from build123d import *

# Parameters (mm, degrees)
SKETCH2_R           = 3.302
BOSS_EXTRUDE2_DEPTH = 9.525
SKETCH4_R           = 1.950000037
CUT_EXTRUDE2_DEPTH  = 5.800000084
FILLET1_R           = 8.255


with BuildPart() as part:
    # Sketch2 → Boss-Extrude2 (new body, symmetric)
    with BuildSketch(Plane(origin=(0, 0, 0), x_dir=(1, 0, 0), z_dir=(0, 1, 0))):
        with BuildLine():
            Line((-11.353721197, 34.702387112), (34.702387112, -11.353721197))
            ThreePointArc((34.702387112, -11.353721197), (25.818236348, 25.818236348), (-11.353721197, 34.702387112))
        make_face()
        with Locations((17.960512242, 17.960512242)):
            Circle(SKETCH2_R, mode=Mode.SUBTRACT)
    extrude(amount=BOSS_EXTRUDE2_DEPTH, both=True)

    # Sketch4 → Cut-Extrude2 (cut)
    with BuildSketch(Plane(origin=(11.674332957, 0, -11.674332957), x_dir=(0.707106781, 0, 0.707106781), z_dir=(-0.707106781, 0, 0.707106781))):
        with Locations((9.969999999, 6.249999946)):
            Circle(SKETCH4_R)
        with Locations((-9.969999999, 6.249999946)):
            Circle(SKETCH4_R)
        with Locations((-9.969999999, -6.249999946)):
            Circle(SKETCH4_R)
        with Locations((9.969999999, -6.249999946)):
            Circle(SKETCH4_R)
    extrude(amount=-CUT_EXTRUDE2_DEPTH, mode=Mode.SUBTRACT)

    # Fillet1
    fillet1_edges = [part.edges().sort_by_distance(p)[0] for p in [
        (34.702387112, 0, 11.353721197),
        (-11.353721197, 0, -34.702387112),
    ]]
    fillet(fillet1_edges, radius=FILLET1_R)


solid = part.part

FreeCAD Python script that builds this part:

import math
import FreeCAD as App
import Part
import Sketcher
Q = App.Units.Quantity


def edges_at(feature, points):
    """Names of the edges that pass closest to the given points."""
    edges = feature.Shape.Edges
    near = lambda p: min(range(len(edges)), key=lambda i: edges[i].distToShape(Part.Vertex(*p))[0])
    return sorted({f"Edge{near(p) + 1}" for p in points})

doc = App.newDocument("Part")
params = doc.addObject("Spreadsheet::Sheet", "Params")
for row, (alias, value) in enumerate([
    ("sketch1_diameter", "0.26 in"),
    ("sketch1_radius", "1.4375 in"),
    ("pad1_length", "0.75 in"),
    ("pocket1_length", "5.8 mm"),
    ("fillet_radius", "0.325 in"),
], start=1):
    params.set(f"A{row}", alias)
    params.set(f"B{row}", "=" + value)
    params.setAlias(f"B{row}", alias)

body = doc.addObject("PartDesign::Body", "Body")

sketch1 = body.newObject("Sketcher::SketchObject", "Sketch")
sketch1.AttachmentSupport = (doc.getObject("XZ_Plane"), [""])
sketch1.MapMode = "FlatFace"
sketch1.addGeometry(Part.LineSegment(App.Vector(-11.4, -34.7, 0), App.Vector(34.7, 11.4, 0)), False)
sketch1.addGeometry(Part.ArcOfCircle(Part.Circle(App.Vector(0, 0, 0), App.Vector(0, 0, 1), 36.5), math.radians(-108), math.radians(18)), False)
sketch1.addGeometry(Part.Circle(App.Vector(18, -18, 0), App.Vector(0, 0, 1), 3.3), False)
sketch1.addConstraint(Sketcher.Constraint("Coincident", 0, 1, 1, 1))
sketch1.addConstraint(Sketcher.Constraint("Coincident", 1, 2, 0, 2))
sketch1.addConstraint(Sketcher.Constraint("Coincident", 1, 3, -1, 1))
sketch1.addConstraint(Sketcher.Constraint("Diameter", 2, Q("0.26 in")))
sketch1.addConstraint(Sketcher.Constraint("Angle", 0, Q("45 deg")))
sketch1.addConstraint(Sketcher.Constraint("Radius", 1, Q("1.4375 in")))
sketch1.addConstraint(Sketcher.Constraint("DistanceX", 0, 1, -1, 1, Q("11.353721 mm")))
sketch1.addConstraint(Sketcher.Constraint("DistanceX", -1, 1, 2, 3, Q("17.960512 mm")))
sketch1.addConstraint(Sketcher.Constraint("DistanceY", 2, 3, -1, 1, Q("17.960512 mm")))
sketch1.setExpression("Constraints[3]", "Params.sketch1_diameter")
sketch1.setExpression("Constraints[5]", "Params.sketch1_radius")
pad1 = body.newObject("PartDesign::Pad", "Pad")
pad1.Profile = sketch1
pad1.setExpression("Length", "Params.pad1_length")
pad1.Midplane = True

sketch2 = body.newObject("Sketcher::SketchObject", "Sketch001")
sketch2.Placement = App.Placement(App.Vector(11.674333, 0, -11.674333), App.Rotation(App.Vector(0.707106781, 0, 0.707106781), App.Vector(0, 0.999999999, 0), App.Vector(-0.707106781, 0, 0.707106781), "ZXY"))
sketch2.addGeometry(Part.Circle(App.Vector(10, 6.2, 0), App.Vector(0, 0, 1), 2), False)
sketch2.addGeometry(Part.Circle(App.Vector(-10, 6.2, 0), App.Vector(0, 0, 1), 2), False)
sketch2.addGeometry(Part.Circle(App.Vector(-10, -6.2, 0), App.Vector(0, 0, 1), 2), False)
sketch2.addGeometry(Part.Circle(App.Vector(10, -6.2, 0), App.Vector(0, 0, 1), 2), False)
sketch2.addConstraint(Sketcher.Constraint("Equal", 0, 1))
sketch2.addConstraint(Sketcher.Constraint("Equal", 1, 2))
sketch2.addConstraint(Sketcher.Constraint("Equal", 2, 3))
sketch2.addConstraint(Sketcher.Constraint("Symmetric", 0, 3, 2, 3, -1, 1))
sketch2.addConstraint(Sketcher.Constraint("Symmetric", 1, 3, 3, 3, -1, 1))
sketch2.addConstraint(Sketcher.Constraint("Symmetric", 0, 3, 1, 3, -2))
sketch2.addConstraint(Sketcher.Constraint("Diameter", 0, Q("3.9 mm")))
sketch2.addConstraint(Sketcher.Constraint("DistanceX", -1, 1, 0, 3, Q("9.97 mm")))
sketch2.addConstraint(Sketcher.Constraint("DistanceY", -1, 1, 0, 3, Q("6.25 mm")))
pocket1 = body.newObject("PartDesign::Pocket", "Pocket")
pocket1.Profile = sketch2
pocket1.setExpression("Length", "Params.pocket1_length")
doc.recompute()

fillet = body.newObject("PartDesign::Fillet", "Fillet")
fillet.Base = (pocket1, edges_at(pocket1, [(34.702, 0, 11.354), (-11.354, 0, -34.702)]))
fillet.setExpression("Radius", "Params.fillet_radius")

doc.recompute()
